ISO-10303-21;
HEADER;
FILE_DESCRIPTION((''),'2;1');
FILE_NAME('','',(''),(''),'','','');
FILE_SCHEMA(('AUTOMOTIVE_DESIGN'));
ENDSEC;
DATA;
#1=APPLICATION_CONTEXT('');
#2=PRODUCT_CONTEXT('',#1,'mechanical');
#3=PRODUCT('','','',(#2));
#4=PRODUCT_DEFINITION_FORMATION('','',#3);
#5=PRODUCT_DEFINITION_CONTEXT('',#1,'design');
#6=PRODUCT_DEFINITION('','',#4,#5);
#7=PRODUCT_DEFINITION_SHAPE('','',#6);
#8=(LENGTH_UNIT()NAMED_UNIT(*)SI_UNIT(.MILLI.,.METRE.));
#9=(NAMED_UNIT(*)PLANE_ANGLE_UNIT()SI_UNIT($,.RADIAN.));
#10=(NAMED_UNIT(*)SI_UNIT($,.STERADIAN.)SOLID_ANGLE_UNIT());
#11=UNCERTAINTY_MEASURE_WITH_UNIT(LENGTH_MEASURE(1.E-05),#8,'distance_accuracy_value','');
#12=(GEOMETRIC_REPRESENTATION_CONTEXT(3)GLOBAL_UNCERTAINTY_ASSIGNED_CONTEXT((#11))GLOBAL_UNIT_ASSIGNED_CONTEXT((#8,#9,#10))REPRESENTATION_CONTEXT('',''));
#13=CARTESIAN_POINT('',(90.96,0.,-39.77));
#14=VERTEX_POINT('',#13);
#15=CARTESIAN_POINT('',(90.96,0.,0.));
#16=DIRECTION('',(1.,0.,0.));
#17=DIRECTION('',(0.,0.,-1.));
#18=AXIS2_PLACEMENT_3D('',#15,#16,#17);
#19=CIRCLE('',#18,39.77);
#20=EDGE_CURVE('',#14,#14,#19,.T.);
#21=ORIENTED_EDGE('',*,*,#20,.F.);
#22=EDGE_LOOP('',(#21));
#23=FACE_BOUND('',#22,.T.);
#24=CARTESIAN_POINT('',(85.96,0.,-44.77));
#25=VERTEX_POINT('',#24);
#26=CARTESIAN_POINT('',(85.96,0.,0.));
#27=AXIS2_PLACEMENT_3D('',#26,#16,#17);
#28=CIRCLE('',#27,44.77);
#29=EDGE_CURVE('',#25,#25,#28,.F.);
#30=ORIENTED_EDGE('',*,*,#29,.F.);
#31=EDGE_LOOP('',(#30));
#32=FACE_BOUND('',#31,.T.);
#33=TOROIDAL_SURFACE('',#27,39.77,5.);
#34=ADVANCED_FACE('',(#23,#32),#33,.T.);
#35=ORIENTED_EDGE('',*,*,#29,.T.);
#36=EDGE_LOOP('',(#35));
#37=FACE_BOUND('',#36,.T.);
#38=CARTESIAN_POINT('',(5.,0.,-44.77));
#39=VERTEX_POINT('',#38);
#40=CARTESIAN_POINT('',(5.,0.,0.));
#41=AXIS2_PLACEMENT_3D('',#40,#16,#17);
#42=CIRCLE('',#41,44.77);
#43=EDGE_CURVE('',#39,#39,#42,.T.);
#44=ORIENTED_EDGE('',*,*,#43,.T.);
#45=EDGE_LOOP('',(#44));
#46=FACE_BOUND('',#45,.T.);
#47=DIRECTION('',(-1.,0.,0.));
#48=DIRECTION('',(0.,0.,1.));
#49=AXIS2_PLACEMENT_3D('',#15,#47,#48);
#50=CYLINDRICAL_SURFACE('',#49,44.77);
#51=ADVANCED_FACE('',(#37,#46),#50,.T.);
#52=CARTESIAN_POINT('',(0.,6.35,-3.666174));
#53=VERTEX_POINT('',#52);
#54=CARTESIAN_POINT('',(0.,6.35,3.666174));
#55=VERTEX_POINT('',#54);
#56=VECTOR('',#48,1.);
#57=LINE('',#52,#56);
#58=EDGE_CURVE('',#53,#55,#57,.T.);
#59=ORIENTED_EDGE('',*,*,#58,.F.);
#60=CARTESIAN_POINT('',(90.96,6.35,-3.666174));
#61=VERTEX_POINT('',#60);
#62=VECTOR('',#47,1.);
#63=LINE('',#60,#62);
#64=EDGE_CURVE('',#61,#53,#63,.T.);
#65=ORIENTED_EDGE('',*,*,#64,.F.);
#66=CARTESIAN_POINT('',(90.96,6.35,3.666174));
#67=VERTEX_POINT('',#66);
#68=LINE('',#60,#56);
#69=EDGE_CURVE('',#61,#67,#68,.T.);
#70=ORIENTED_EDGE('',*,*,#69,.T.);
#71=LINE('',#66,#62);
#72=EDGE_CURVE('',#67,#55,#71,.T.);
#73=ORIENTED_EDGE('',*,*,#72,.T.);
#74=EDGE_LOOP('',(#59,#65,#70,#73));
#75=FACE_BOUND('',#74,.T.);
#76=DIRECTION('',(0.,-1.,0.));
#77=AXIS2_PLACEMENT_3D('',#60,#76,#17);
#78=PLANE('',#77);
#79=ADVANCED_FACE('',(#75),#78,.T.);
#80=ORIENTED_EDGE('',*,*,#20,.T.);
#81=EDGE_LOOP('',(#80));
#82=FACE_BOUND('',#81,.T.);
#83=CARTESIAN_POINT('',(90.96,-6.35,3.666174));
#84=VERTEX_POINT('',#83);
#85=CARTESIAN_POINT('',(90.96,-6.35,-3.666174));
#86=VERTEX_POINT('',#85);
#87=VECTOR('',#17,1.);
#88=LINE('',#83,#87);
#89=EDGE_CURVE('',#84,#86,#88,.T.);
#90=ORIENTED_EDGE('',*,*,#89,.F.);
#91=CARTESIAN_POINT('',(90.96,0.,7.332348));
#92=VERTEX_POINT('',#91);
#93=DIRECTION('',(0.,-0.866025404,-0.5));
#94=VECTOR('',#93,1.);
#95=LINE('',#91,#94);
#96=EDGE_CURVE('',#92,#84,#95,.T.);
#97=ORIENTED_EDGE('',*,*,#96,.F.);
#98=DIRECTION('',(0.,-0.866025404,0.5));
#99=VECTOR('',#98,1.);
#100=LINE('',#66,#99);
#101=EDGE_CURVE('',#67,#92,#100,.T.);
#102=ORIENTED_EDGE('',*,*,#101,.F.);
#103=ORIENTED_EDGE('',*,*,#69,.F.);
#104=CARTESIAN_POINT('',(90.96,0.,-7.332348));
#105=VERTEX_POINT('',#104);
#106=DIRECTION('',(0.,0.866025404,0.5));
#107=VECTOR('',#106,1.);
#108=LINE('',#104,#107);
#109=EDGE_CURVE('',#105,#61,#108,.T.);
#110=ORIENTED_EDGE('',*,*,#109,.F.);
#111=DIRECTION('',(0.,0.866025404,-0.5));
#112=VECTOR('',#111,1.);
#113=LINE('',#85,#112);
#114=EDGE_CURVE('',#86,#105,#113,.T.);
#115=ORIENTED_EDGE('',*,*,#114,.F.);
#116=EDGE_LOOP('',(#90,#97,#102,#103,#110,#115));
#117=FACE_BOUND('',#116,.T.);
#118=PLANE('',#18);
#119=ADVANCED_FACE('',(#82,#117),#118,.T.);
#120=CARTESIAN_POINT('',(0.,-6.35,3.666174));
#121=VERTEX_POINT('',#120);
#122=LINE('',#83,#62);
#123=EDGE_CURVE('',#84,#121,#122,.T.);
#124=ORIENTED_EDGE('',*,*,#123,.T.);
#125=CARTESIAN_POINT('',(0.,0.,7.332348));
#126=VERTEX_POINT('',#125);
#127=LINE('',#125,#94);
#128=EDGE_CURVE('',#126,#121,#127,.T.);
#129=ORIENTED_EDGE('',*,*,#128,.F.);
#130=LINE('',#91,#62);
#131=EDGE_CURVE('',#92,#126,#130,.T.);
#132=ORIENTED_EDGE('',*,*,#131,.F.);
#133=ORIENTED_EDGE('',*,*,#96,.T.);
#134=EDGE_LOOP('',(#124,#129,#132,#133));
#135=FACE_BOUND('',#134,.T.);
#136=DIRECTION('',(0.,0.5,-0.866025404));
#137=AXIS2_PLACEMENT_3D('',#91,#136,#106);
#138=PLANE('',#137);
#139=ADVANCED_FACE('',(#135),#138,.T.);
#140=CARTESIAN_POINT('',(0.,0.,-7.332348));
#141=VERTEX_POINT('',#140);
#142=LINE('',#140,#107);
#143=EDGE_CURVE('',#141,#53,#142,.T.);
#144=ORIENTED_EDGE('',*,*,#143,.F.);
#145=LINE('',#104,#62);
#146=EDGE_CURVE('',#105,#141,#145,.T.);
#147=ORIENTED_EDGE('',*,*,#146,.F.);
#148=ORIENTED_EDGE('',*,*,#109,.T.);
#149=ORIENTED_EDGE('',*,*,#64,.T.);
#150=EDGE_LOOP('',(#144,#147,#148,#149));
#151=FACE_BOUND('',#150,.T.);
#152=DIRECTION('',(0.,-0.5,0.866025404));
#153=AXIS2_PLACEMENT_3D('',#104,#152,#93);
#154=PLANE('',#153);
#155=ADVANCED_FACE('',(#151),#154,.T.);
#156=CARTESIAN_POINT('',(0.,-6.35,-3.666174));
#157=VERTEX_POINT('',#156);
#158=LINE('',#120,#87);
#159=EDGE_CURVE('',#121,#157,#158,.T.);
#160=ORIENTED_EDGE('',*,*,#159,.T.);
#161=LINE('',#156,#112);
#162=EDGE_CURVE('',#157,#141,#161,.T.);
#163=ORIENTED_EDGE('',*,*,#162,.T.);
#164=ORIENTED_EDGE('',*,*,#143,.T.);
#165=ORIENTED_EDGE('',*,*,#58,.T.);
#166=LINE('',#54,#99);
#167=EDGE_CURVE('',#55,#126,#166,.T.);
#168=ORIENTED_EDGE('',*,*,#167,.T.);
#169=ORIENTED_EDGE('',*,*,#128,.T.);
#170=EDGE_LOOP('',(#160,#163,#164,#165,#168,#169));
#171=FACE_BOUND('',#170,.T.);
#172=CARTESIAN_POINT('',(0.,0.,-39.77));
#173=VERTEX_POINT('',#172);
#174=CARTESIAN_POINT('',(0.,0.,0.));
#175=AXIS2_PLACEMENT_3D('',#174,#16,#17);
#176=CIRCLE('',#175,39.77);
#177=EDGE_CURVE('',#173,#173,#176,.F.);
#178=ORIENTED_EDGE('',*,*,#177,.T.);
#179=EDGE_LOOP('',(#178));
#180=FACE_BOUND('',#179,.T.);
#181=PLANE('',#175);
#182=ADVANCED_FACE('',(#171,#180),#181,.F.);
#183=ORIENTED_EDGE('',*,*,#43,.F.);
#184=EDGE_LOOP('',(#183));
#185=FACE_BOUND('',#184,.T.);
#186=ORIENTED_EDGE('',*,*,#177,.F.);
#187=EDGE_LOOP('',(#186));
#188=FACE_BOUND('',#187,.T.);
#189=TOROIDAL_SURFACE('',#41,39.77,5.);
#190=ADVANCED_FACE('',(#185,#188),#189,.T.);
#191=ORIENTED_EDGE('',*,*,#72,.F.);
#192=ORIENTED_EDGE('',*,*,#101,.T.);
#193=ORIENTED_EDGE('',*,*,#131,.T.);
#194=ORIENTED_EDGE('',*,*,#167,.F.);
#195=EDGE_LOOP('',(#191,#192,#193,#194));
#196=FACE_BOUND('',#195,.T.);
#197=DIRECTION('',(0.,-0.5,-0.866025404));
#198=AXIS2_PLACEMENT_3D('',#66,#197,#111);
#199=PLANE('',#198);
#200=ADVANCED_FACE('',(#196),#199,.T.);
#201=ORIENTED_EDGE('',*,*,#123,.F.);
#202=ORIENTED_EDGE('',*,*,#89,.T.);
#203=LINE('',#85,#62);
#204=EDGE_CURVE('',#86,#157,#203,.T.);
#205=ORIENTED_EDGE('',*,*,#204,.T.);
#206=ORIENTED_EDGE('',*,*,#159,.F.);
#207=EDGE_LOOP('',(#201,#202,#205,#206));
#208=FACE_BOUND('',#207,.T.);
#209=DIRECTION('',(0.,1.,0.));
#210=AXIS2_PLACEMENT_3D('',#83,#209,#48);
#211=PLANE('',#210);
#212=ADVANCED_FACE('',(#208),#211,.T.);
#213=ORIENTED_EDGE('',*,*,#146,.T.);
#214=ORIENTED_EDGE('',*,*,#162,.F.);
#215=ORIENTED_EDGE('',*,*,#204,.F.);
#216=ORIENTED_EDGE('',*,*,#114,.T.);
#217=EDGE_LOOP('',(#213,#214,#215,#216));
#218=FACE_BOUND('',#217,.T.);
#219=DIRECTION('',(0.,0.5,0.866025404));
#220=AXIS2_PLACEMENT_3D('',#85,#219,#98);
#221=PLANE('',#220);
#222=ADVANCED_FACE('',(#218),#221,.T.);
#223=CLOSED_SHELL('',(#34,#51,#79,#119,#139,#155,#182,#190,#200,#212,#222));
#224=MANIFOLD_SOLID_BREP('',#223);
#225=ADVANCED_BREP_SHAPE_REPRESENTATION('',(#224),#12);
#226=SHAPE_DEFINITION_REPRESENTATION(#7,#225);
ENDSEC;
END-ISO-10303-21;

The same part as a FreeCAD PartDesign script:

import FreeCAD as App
import Part
import Sketcher

V = App.Vector
Q = App.Units.Quantity


def edges_at(feature, points):
    """Names of the edges that pass closest to the given points."""
    edges = feature.Shape.Edges
    near = lambda p: min(range(len(edges)), key=lambda i: edges[i].distToShape(Part.Vertex(*p))[0])
    return sorted({f"Edge{near(p) + 1}" for p in points})

doc = App.newDocument("Part")
body = doc.addObject("PartDesign::Body", "Body")

# Sketch on YZ plane
sketch1 = body.newObject("Sketcher::SketchObject", "Sketch")
sketch1.AttachmentSupport = (doc.getObject("YZ_Plane"), [""])
sketch1.MapMode = "FlatFace"
sketch1.addGeometry([
    Part.Circle(V(0, 0, 0), V(0, 0, 1), 45),  # 0
    Part.LineSegment(V(6, -4, 0), V(0, -7, 0)),  # 1
    Part.LineSegment(V(0, -7, 0), V(-6, -4, 0)),  # 2
    Part.LineSegment(V(-6, -4, 0), V(-6, 4, 0)),  # 3
    Part.LineSegment(V(-6, 4, 0), V(0, 7, 0)),  # 4
    Part.LineSegment(V(0, 7, 0), V(6, 4, 0)),  # 5
    Part.LineSegment(V(6, 4, 0), V(6, -4, 0)),  # 6
], False)
sketch1.addConstraint([
    Sketcher.Constraint("Coincident", 1, 2, 2, 1),
    Sketcher.Constraint("Coincident", 2, 2, 3, 1),
    Sketcher.Constraint("Coincident", 3, 2, 4, 1),
    Sketcher.Constraint("Coincident", 4, 2, 5, 1),
    Sketcher.Constraint("Coincident", 5, 2, 6, 1),
    Sketcher.Constraint("Coincident", 6, 2, 1, 1),
    Sketcher.Constraint("Vertical", 3),
    Sketcher.Constraint("Vertical", 6),
    Sketcher.Constraint("Coincident", 0, 3, -1, 1),
    Sketcher.Constraint("Symmetric", 1, 2, 4, 2, -1, 1),
    Sketcher.Constraint("Symmetric", 2, 2, 5, 2, -1, 1),
    Sketcher.Constraint("PointOnObject", 1, 2, -2),
    Sketcher.Constraint("Parallel", 1, 4),
    Sketcher.Constraint("Horizontal", 3, 2, 5, 2),
    Sketcher.Constraint("Diameter", 0, 89.54),
    Sketcher.Constraint("Angle", 1, Q("-150 deg")),
    Sketcher.Constraint("DistanceX", 3, 2, 5, 2, 12.7),
    Sketcher.Constraint("DistanceY", 3, 1, 3, 2, 7.332348),
])
pad1 = body.newObject("PartDesign::Pad", "Pad")
pad1.Profile = sketch1
pad1.Length = 90.96
doc.recompute()

fillet = body.newObject("PartDesign::Fillet", "Fillet")
fillet.Base = (pad1, edges_at(pad1, [(0, 0, 44.77), (90.96, 0, 44.77)]))
fillet.Radius = 5

doc.recompute()
